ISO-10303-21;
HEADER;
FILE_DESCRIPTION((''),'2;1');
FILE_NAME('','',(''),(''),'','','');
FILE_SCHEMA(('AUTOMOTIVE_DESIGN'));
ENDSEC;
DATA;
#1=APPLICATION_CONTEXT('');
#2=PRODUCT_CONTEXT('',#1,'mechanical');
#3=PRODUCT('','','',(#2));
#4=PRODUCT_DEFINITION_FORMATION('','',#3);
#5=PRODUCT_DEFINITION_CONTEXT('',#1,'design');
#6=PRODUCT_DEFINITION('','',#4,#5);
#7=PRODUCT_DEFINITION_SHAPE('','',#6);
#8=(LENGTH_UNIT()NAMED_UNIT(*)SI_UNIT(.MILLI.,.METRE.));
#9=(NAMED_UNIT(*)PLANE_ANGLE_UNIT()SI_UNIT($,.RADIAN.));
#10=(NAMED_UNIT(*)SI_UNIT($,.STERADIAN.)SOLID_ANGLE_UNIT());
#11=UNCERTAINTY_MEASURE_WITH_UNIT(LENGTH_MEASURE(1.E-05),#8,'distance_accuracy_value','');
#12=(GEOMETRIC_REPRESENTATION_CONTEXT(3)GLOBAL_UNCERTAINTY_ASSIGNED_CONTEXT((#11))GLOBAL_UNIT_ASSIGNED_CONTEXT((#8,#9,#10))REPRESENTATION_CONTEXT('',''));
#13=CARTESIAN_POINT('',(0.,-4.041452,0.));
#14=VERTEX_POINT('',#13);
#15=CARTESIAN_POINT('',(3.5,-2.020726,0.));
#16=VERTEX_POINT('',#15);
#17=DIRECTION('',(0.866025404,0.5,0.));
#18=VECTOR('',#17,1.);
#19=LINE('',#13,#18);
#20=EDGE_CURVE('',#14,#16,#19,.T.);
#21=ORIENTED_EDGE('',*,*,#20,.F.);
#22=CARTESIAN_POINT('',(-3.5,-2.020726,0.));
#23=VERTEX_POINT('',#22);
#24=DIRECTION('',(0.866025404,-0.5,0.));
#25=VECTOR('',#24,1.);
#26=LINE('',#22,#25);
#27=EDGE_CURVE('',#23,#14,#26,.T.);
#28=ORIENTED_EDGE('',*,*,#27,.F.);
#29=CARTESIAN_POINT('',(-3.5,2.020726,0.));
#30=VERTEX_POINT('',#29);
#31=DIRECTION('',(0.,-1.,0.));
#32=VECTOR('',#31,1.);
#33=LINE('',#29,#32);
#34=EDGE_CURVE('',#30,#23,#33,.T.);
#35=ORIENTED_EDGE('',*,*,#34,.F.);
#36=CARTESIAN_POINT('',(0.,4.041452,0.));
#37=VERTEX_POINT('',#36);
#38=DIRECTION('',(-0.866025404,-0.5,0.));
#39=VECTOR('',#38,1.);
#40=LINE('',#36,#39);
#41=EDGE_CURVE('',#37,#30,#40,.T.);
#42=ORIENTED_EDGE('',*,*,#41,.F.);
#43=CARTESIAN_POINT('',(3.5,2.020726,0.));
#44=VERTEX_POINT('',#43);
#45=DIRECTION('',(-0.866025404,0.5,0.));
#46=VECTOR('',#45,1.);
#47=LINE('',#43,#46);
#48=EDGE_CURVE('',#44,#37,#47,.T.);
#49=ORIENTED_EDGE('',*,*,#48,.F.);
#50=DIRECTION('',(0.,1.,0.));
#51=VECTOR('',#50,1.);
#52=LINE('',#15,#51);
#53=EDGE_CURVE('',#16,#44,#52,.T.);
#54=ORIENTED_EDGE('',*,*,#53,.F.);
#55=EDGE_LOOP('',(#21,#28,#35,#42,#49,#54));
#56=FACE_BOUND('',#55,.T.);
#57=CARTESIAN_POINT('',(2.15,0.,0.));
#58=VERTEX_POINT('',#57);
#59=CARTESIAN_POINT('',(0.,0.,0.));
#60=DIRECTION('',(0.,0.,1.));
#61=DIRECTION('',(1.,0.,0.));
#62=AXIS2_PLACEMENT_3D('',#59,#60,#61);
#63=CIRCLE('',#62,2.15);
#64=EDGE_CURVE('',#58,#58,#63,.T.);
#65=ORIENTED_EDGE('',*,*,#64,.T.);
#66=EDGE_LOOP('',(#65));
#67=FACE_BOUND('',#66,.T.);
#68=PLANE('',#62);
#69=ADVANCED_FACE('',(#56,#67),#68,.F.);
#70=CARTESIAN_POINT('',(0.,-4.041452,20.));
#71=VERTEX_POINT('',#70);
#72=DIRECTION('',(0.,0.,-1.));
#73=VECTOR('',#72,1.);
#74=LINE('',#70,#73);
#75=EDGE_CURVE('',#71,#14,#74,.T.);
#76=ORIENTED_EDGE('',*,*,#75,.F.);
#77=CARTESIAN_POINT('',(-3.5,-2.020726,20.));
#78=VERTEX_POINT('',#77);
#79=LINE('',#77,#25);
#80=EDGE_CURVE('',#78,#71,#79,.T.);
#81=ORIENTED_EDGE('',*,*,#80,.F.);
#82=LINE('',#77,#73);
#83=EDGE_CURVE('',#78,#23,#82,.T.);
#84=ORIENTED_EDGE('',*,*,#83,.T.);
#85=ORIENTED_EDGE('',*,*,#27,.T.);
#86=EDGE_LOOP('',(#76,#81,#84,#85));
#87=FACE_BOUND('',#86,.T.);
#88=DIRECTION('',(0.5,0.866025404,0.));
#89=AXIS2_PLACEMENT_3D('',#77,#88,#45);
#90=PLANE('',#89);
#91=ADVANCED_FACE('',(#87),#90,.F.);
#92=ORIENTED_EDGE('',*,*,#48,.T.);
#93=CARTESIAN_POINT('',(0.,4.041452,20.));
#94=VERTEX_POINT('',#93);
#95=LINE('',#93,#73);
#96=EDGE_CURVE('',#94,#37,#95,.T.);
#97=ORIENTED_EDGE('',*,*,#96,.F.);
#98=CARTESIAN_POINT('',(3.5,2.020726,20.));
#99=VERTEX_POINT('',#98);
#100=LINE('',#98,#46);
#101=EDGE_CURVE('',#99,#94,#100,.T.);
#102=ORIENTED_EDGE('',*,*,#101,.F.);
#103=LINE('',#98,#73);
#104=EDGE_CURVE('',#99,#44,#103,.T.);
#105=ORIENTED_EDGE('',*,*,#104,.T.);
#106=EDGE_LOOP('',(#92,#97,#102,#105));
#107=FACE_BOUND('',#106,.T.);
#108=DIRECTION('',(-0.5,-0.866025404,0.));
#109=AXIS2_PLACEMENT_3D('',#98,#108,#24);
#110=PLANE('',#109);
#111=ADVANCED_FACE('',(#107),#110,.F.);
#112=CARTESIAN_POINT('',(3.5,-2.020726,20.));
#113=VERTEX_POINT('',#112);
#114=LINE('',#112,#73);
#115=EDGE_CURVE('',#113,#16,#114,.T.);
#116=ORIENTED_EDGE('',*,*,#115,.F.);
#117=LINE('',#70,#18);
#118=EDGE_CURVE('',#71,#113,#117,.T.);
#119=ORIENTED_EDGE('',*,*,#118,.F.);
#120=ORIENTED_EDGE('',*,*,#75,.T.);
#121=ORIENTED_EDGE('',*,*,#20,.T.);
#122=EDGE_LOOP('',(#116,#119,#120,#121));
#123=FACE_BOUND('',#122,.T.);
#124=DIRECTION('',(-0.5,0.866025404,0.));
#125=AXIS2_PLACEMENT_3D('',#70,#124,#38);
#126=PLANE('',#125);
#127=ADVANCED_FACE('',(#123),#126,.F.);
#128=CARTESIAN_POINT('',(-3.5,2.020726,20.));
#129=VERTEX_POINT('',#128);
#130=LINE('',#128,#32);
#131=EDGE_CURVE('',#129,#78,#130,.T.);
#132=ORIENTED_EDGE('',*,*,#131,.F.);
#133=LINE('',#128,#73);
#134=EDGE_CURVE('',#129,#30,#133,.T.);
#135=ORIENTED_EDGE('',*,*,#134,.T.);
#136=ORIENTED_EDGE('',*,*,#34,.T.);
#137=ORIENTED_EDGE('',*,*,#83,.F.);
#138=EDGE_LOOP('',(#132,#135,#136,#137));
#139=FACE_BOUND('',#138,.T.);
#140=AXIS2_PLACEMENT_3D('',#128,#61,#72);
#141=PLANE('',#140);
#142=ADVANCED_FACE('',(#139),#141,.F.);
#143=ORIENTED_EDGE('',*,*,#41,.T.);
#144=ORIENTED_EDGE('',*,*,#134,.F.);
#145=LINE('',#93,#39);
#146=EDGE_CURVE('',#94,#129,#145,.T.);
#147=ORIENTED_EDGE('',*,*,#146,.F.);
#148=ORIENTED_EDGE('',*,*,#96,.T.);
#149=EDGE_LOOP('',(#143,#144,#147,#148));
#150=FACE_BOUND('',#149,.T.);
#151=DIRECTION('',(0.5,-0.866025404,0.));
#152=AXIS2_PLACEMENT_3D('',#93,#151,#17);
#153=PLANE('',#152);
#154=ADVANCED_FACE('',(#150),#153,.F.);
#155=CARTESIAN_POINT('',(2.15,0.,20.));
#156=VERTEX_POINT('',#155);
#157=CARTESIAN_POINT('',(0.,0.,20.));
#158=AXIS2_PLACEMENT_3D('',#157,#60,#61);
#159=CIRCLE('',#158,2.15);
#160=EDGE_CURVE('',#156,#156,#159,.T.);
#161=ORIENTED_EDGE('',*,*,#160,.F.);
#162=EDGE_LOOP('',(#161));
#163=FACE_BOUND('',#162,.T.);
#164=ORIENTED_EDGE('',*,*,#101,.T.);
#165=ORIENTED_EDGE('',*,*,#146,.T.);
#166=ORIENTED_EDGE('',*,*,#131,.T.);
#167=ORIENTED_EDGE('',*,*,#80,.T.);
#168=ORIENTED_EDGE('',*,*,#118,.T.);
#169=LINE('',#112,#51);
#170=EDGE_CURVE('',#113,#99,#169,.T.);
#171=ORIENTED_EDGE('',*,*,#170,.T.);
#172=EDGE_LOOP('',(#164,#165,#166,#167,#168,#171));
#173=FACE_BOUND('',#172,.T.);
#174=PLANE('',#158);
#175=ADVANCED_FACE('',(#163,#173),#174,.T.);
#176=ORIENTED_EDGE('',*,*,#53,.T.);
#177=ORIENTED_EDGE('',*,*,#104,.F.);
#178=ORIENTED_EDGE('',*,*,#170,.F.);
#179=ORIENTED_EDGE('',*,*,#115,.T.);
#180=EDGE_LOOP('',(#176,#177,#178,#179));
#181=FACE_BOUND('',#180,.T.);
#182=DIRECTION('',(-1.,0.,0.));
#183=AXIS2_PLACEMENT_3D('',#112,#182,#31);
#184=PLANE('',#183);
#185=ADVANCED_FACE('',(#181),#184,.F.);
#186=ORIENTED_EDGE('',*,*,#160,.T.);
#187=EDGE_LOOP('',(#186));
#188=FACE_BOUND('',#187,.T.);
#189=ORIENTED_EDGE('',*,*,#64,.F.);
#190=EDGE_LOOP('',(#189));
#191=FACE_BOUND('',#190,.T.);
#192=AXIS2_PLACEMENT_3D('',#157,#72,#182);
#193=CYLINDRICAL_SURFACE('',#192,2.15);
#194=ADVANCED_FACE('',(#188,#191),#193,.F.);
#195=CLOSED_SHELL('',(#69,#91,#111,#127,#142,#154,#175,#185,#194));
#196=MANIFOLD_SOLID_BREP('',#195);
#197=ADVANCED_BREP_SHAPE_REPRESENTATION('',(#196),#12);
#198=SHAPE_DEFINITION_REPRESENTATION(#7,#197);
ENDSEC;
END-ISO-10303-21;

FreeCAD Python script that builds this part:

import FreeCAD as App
import Part
import Sketcher
Q = App.Units.Quantity


def add_polygon(sketch, points):
    """Adds a closed chain of lines whose ends are joined by coincident constraints."""
    first, n = sketch.GeometryCount, len(points)
    for a, b in zip(points, points[1:] + points[:1]):
        sketch.addGeometry(Part.LineSegment(App.Vector(*a, 0), App.Vector(*b, 0)), False)
    for i in range(n):
        sketch.addConstraint(Sketcher.Constraint("Coincident", first + i, 2, first + (i + 1) % n, 1))

doc = App.newDocument("Part")
body = doc.addObject("PartDesign::Body", "Body")

# Sketch on XY plane
sketch1 = body.newObject("Sketcher::SketchObject", "Sketch")
sketch1.AttachmentSupport = (doc.getObject("XY_Plane"), [""])
sketch1.MapMode = "FlatFace"
add_polygon(sketch1, [(3.5, -2), (3.5, 2), (0, 4), (-3.5, 2), (-3.5, -2), (0, -4)])  # lines 0-5
sketch1.addGeometry(Part.Circle(App.Vector(0, 0, 0), App.Vector(0, 0, 1), 2.1), False)  # 6
sketch1.addConstraint([
    Sketcher.Constraint("Vertical", 0),
    Sketcher.Constraint("Vertical", 3),
    Sketcher.Constraint("Coincident", 6, 3, -1, 1),
    Sketcher.Constraint("Symmetric", 0, 2, 3, 2, -1, 1),
    Sketcher.Constraint("Symmetric", 1, 2, 4, 2, -1, 1),
    Sketcher.Constraint("PointOnObject", 1, 2, -2),
    Sketcher.Constraint("Parallel", 2, 5),
    Sketcher.Constraint("Horizontal", 0, 2, 2, 2),
    Sketcher.Constraint("Diameter", 6, 4.3),
    Sketcher.Constraint("Angle", 1, Q("150 deg")),
    Sketcher.Constraint("DistanceX", 2, 2, 0, 2, 7.0),
    Sketcher.Constraint("DistanceY", 0, 1, 0, 2, 4.041452),
])
pad1 = body.newObject("PartDesign::Pad", "Pad")
pad1.Profile = sketch1
pad1.Length = 20

doc.recompute()
